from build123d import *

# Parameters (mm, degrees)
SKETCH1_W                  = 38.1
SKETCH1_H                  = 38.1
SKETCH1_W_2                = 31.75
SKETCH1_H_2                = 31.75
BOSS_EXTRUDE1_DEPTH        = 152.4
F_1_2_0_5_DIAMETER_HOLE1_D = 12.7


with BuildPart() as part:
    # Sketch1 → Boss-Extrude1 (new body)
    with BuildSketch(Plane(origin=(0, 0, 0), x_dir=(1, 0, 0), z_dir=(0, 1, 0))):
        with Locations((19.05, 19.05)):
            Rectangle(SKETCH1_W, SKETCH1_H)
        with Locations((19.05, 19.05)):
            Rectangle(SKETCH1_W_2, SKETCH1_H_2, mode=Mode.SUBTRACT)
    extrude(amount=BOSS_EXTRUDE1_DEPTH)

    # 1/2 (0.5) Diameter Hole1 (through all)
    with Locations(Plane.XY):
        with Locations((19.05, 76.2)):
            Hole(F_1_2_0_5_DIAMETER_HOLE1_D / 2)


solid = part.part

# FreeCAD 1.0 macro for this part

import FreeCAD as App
import Part
import Sketcher
from FreeCAD import Vector
Q = App.Units.Quantity

doc = App.newDocument("Part")
params = doc.addObject("Spreadsheet::Sheet", "Params")
for row, (alias, value) in enumerate([
    ("sketch1_width", "1.5 in"),
    ("sketch1_width2", "1.25 in"),
    ("pad1_length", "6 in"),
    ("sketch2_diameter", "0.5 in"),
    ("hole_diameter", "0.5 in"),
], start=1):
    params.set(f"A{row}", alias)
    params.set(f"B{row}", "=" + value)
    params.setAlias(f"B{row}", alias)

body = doc.addObject("PartDesign::Body", "Body")

sketch1 = body.newObject("Sketcher::SketchObject", "Sketch")
sketch1.AttachmentSupport = (doc.getObject("XZ_Plane"), [""])
sketch1.MapMode = "FlatFace"
sketch1.addGeometry([
    Part.LineSegment(Vector(0, -38, 0), Vector(0, 0, 0)),
    Part.LineSegment(Vector(0, 0, 0), Vector(38, 0, 0)),
    Part.LineSegment(Vector(38, 0, 0), Vector(38, -38, 0)),
    Part.LineSegment(Vector(38, -38, 0), Vector(0, -38, 0)),
    Part.LineSegment(Vector(35, -3, 0), Vector(3, -3, 0)),
    Part.LineSegment(Vector(3, -3, 0), Vector(3, -35, 0)),
    Part.LineSegment(Vector(3, -35, 0), Vector(35, -35, 0)),
    Part.LineSegment(Vector(35, -35, 0), Vector(35, -3, 0)),
], False)
sketch1.addConstraint([
    Sketcher.Constraint("Coincident", 0, 2, 1, 1),
    Sketcher.Constraint("Coincident", 1, 2, 2, 1),
    Sketcher.Constraint("Coincident", 2, 2, 3, 1),
    Sketcher.Constraint("Coincident", 3, 2, 0, 1),
    Sketcher.Constraint("Coincident", 4, 2, 5, 1),
    Sketcher.Constraint("Coincident", 5, 2, 6, 1),
    Sketcher.Constraint("Coincident", 6, 2, 7, 1),
    Sketcher.Constraint("Coincident", 7, 2, 4, 1),
    Sketcher.Constraint("Vertical", 0),
    Sketcher.Constraint("Horizontal", 1),
    Sketcher.Constraint("Vertical", 2),
    Sketcher.Constraint("Horizontal", 3),
    Sketcher.Constraint("Horizontal", 4),
    Sketcher.Constraint("Vertical", 5),
    Sketcher.Constraint("Horizontal", 6),
    Sketcher.Constraint("Vertical", 7),
    Sketcher.Constraint("Coincident", 0, 2, -1, 1),
    Sketcher.Constraint("Equal", 3, 0),
    Sketcher.Constraint("Equal", 6, 5),
    Sketcher.Constraint("DistanceX", 1, 1, 1, 2, Q("1.5 in")),
    Sketcher.Constraint("DistanceX", 4, 2, 4, 1, Q("1.25 in")),
    Sketcher.Constraint("DistanceX", -1, 1, 4, 2, Q("0.125 in")),
    Sketcher.Constraint("DistanceY", 4, 2, -1, 1, Q("0.125 in")),
])
sketch1.setExpression("Constraints[19]", "Params.sketch1_width")
sketch1.setExpression("Constraints[20]", "Params.sketch1_width2")
pad1 = body.newObject("PartDesign::Pad", "Pad")
pad1.Profile = sketch1
pad1.setExpression("Length", "Params.pad1_length")
pad1.Reversed = True

sketch2 = body.newObject("Sketcher::SketchObject", "Sketch001")
sketch2.AttachmentSupport = (doc.getObject("XY_Plane"), [""])
sketch2.MapMode = "FlatFace"
sketch2.addGeometry(Part.Circle(Vector(19, 76, 0), Vector(0, 0, 1), 6), False)
sketch2.addConstraint([
    Sketcher.Constraint("Diameter", 0, Q("0.5 in")),
    Sketcher.Constraint("DistanceY", -1, 1, 0, 3, Q("3 in")),
    Sketcher.Constraint("DistanceX", -1, 1, 0, 3, Q("0.75 in")),
])
sketch2.setExpression("Constraints[0]", "Params.sketch2_diameter")
doc.recompute()
hole = body.newObject("PartDesign::Hole", "Hole")
hole.Profile = sketch2
hole.ThreadType = "None"
hole.setExpression("Diameter", "Params.hole_diameter")
hole.DepthType = "ThroughAll"

doc.recompute()
